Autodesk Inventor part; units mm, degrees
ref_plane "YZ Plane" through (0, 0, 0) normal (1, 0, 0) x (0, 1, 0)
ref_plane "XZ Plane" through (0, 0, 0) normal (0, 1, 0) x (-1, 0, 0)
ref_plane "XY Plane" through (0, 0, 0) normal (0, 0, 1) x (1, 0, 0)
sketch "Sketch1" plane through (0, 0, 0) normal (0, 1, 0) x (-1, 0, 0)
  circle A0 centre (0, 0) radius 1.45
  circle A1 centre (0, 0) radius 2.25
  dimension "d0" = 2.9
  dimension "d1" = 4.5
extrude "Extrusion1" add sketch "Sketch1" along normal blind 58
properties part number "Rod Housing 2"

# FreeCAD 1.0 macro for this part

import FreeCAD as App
import Part
import Sketcher

V = App.Vector

doc = App.newDocument("Part")
body = doc.addObject("PartDesign::Body", "Body")

sketch1 = body.newObject("Sketcher::SketchObject", "Sketch")
sketch1.AttachmentSupport = (doc.getObject("XZ_Plane"), [""])
sketch1.MapMode = "FlatFace"
sketch1.addGeometry(Part.Circle(V(0, 0, 0), V(0, 0, 1), 2.2), False)
sketch1.addGeometry(Part.Circle(V(0, 0, 0), V(0, 0, 1), 1.4), False)
sketch1.addConstraint(Sketcher.Constraint("Coincident", 0, 3, -1, 1))
sketch1.addConstraint(Sketcher.Constraint("Coincident", 1, 3, -1, 1))
sketch1.addConstraint(Sketcher.Constraint("Diameter", 0, 4.5))
sketch1.addConstraint(Sketcher.Constraint("Diameter", 1, 2.9))
pad1 = body.newObject("PartDesign::Pad", "Pad")
pad1.Profile = sketch1
pad1.Length = 58
pad1.Reversed = True

doc.recompute()
